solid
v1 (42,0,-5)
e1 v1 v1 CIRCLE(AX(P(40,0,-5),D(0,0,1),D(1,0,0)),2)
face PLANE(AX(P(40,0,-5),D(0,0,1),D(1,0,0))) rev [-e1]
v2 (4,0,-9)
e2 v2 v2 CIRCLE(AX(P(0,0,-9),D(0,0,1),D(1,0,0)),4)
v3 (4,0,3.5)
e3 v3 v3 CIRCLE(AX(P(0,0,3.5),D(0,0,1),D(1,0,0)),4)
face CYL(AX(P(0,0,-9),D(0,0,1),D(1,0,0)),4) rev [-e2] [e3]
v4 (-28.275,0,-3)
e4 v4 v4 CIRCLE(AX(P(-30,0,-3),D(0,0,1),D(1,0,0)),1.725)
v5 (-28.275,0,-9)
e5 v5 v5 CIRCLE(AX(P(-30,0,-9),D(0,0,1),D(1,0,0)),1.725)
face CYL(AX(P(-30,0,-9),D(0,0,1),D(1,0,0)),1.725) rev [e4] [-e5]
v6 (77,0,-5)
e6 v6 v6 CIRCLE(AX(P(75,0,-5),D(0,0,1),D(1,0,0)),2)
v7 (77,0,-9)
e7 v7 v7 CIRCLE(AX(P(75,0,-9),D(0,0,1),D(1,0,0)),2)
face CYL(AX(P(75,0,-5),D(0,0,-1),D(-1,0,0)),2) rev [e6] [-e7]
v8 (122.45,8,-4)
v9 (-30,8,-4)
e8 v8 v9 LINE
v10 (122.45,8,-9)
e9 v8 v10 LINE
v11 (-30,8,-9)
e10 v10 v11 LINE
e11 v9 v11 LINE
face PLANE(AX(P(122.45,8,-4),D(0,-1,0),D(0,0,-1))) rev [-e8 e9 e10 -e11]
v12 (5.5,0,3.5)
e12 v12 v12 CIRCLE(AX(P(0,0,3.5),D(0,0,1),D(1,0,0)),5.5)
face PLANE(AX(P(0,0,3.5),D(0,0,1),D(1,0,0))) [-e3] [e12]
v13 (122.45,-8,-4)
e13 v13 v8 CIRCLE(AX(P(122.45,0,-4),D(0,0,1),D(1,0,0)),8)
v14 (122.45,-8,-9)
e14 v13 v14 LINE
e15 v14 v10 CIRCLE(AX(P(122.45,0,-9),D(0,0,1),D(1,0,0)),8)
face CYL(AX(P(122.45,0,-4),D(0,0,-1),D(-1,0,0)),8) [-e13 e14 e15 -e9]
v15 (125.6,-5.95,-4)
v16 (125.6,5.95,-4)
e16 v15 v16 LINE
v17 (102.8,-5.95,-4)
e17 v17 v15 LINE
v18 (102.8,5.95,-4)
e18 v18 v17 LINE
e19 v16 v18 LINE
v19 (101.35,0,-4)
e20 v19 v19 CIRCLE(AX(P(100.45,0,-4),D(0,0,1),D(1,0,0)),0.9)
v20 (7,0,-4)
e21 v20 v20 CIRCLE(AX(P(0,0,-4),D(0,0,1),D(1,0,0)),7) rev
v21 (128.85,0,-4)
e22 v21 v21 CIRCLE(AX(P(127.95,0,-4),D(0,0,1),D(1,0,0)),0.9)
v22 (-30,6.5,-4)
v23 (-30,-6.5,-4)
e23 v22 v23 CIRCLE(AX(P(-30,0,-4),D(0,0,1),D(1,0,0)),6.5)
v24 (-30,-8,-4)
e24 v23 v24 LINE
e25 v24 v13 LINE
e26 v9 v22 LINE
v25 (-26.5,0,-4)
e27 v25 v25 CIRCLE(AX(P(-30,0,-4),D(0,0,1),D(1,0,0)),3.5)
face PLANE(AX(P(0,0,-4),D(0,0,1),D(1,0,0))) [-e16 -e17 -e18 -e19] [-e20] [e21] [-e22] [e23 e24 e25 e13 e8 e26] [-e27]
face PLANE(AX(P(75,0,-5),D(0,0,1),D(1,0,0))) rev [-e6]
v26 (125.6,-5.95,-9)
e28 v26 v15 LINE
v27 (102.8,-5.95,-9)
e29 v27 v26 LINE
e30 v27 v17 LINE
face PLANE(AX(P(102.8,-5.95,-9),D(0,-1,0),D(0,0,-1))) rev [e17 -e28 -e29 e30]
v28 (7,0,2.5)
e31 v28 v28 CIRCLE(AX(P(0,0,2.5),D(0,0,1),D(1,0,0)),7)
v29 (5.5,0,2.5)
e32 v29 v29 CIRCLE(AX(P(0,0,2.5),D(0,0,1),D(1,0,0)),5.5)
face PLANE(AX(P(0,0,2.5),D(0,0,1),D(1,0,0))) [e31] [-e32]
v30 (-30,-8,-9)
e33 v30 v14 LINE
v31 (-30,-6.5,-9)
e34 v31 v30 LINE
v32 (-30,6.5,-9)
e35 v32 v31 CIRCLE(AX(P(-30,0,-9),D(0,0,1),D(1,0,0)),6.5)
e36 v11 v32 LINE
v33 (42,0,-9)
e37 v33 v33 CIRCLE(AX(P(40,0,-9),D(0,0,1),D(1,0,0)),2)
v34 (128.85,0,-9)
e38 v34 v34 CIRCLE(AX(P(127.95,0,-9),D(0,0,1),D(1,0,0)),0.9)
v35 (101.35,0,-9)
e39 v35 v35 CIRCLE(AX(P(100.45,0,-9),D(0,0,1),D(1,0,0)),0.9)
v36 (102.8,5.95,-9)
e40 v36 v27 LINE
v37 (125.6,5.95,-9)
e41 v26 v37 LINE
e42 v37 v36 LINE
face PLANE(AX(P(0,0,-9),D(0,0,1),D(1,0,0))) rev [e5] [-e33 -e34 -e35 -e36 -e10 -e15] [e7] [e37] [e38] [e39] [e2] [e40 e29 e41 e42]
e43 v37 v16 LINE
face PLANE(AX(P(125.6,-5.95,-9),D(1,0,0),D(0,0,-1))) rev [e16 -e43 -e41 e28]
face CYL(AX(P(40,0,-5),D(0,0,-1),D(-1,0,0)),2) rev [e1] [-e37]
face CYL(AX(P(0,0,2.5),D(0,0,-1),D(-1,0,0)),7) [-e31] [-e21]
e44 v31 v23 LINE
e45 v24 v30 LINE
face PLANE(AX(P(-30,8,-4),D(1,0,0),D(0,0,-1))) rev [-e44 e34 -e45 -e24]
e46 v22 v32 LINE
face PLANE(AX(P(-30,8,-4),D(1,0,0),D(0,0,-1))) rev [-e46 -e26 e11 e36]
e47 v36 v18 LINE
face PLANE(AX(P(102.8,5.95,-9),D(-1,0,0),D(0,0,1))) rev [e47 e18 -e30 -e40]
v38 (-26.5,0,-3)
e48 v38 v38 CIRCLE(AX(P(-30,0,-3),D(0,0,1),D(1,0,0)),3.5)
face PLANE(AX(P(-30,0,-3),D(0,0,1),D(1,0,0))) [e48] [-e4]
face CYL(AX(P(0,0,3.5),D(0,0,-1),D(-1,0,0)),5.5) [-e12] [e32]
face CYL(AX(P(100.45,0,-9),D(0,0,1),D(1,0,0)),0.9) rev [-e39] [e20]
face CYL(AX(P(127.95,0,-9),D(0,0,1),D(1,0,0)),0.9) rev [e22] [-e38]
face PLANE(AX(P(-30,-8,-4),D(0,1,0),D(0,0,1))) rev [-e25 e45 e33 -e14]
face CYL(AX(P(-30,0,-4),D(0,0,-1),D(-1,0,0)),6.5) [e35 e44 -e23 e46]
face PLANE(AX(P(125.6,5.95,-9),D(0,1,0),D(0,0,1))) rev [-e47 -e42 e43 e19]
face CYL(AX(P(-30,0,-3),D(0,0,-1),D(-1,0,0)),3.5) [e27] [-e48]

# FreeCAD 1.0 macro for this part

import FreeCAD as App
import Part
import Sketcher

V = App.Vector
Q = App.Units.Quantity


def add_polygon(sketch, points):
    """Adds a closed chain of lines whose ends are joined by coincident constraints."""
    first, n = sketch.GeometryCount, len(points)
    for a, b in zip(points, points[1:] + points[:1]):
        sketch.addGeometry(Part.LineSegment(App.Vector(*a, 0), App.Vector(*b, 0)), False)
    for i in range(n):
        sketch.addConstraint(Sketcher.Constraint("Coincident", first + i, 2, first + (i + 1) % n, 1))

doc = App.newDocument("Part")
params = doc.addObject("Spreadsheet::Sheet", "Params")
for row, (alias, value) in enumerate([
    ("sketch1_height", "16 mm"),
    ("sketch1_width", "152.45 mm"),
    ("pad1_length", "5 mm"),
    ("sketch2_diameter", "13 mm"),
    ("pad2_length", "5 mm"),
    ("sketch3_diameter", "16 mm"),
    ("pad3_length", "5 mm"),
    ("sketch4_diameter", "14 mm"),
    ("pad4_length", "11.5 mm"),
    ("sketch5_diameter", "11 mm"),
    ("pad5_length", "1 mm"),
    ("sketch6_diameter", "7 mm"),
    ("pad6_length", "1 mm"),
    ("sketch7_diameter", "8 mm"),
    ("sketch8_diameter", "3.45 mm"),
    ("sketch9_width", "22.8 mm"),
    ("sketch9_height", "11.9 mm"),
    ("sketch10_diameter", "1.8 mm"),
    ("sketch11_diameter", "4 mm"),
    ("pocket5_length", "4 mm"),
], start=1):
    params.set(f"A{row}", alias)
    params.set(f"B{row}", "=" + value)
    params.setAlias(f"B{row}", alias)

body = doc.addObject("PartDesign::Body", "Body")

# Sketch on XY plane
sketch1 = doc.addObject("Sketcher::SketchObject", "Sketch")
body.addObject(sketch1)
sketch1.AttachmentSupport = (doc.XY_Plane, [""])
sketch1.MapMode = "FlatFace"
sketch1.AttachmentOffset = App.Placement(V(0, 0, -9), App.Rotation())
add_polygon(sketch1, [(-30, 8), (-30, -8), (122.45, -8), (122.45, 8)])  # lines 0-3
sketch1.addConstraint(Sketcher.Constraint("Vertical", 0))
sketch1.addConstraint(Sketcher.Constraint("Horizontal", 1))
sketch1.addConstraint(Sketcher.Constraint("Vertical", 2))
sketch1.addConstraint(Sketcher.Constraint("Horizontal", 3))
sketch1.addConstraint(Sketcher.Constraint("DistanceY", 0, 2, 0, 1, Q("16 mm")))
sketch1.addConstraint(Sketcher.Constraint("DistanceX", 0, 2, -1, 1, Q("30 mm")))
sketch1.addConstraint(Sketcher.Constraint("DistanceY", 0, 2, -1, 1, Q("8 mm")))
sketch1.addConstraint(Sketcher.Constraint("DistanceX", 1, 1, 1, 2, Q("152.45 mm")))
sketch1.setExpression("Constraints[8]", "Params.sketch1_height")
sketch1.setExpression("Constraints[11]", "Params.sketch1_width")
pad1 = doc.addObject("PartDesign::Pad", "Pad")
body.addObject(pad1)
pad1.Profile = sketch1
pad1.setExpression("Length", "Params.pad1_length")

# Sketch on XY plane
sketch2 = doc.addObject("Sketcher::SketchObject", "Sketch001")
body.addObject(sketch2)
sketch2.AttachmentSupport = (doc.XY_Plane, [""])
sketch2.MapMode = "FlatFace"
sketch2.AttachmentOffset = App.Placement(V(0, 0, -9), App.Rotation())
sketch2.addGeometry(Part.Circle(V(-30, 0, 0), V(0, 0, 1), 6.5), False)
sketch2.addConstraint(Sketcher.Constraint("PointOnObject", 0, 3, -1))
sketch2.addConstraint(Sketcher.Constraint("Diameter", 0, Q("13 mm")))
sketch2.addConstraint(Sketcher.Constraint("DistanceX", 0, 3, -1, 1, Q("30 mm")))
sketch2.setExpression("Constraints[1]", "Params.sketch2_diameter")
pad2 = doc.addObject("PartDesign::Pad", "Pad001")
body.addObject(pad2)
pad2.Profile = sketch2
pad2.setExpression("Length", "Params.pad2_length")

# Sketch on XY plane
sketch3 = doc.addObject("Sketcher::SketchObject", "Sketch002")
body.addObject(sketch3)
sketch3.AttachmentSupport = (doc.XY_Plane, [""])
sketch3.MapMode = "FlatFace"
sketch3.AttachmentOffset = App.Placement(V(0, 0, -9), App.Rotation())
sketch3.addGeometry(Part.Circle(V(122.45, 0, 0), V(0, 0, 1), 8), False)
sketch3.addConstraint(Sketcher.Constraint("PointOnObject", 0, 3, -1))
sketch3.addConstraint(Sketcher.Constraint("Diameter", 0, Q("16 mm")))
sketch3.addConstraint(Sketcher.Constraint("DistanceX", -1, 1, 0, 3, Q("122.45 mm")))
sketch3.setExpression("Constraints[1]", "Params.sketch3_diameter")
pad3 = doc.addObject("PartDesign::Pad", "Pad002")
body.addObject(pad3)
pad3.Profile = sketch3
pad3.setExpression("Length", "Params.pad3_length")

# Sketch on XY plane
sketch4 = doc.addObject("Sketcher::SketchObject", "Sketch003")
body.addObject(sketch4)
sketch4.AttachmentSupport = (doc.XY_Plane, [""])
sketch4.MapMode = "FlatFace"
sketch4.AttachmentOffset = App.Placement(V(0, 0, -9), App.Rotation())
sketch4.addGeometry(Part.Circle(V(0, 0, 0), V(0, 0, 1), 7), False)
sketch4.addConstraint(Sketcher.Constraint("Coincident", 0, 3, -1, 1))
sketch4.addConstraint(Sketcher.Constraint("Diameter", 0, Q("14 mm")))
sketch4.setExpression("Constraints[1]", "Params.sketch4_diameter")
pad4 = doc.addObject("PartDesign::Pad", "Pad003")
body.addObject(pad4)
pad4.Profile = sketch4
pad4.setExpression("Length", "Params.pad4_length")

# Sketch on XY plane
sketch5 = doc.addObject("Sketcher::SketchObject", "Sketch004")
body.addObject(sketch5)
sketch5.AttachmentSupport = (doc.XY_Plane, [""])
sketch5.MapMode = "FlatFace"
sketch5.AttachmentOffset = App.Placement(V(0, 0, 2.5), App.Rotation())
sketch5.addGeometry(Part.Circle(V(0, 0, 0), V(0, 0, 1), 5.5), False)
sketch5.addConstraint(Sketcher.Constraint("Coincident", 0, 3, -1, 1))
sketch5.addConstraint(Sketcher.Constraint("Diameter", 0, Q("11 mm")))
sketch5.setExpression("Constraints[1]", "Params.sketch5_diameter")
pad5 = doc.addObject("PartDesign::Pad", "Pad004")
body.addObject(pad5)
pad5.Profile = sketch5
pad5.setExpression("Length", "Params.pad5_length")

# Sketch on XY plane
sketch6 = doc.addObject("Sketcher::SketchObject", "Sketch005")
body.addObject(sketch6)
sketch6.AttachmentSupport = (doc.XY_Plane, [""])
sketch6.MapMode = "FlatFace"
sketch6.AttachmentOffset = App.Placement(V(0, 0, -4), App.Rotation())
sketch6.addGeometry(Part.Circle(V(-30, 0, 0), V(0, 0, 1), 3.5), False)
sketch6.addConstraint(Sketcher.Constraint("PointOnObject", 0, 3, -1))
sketch6.addConstraint(Sketcher.Constraint("Diameter", 0, Q("7 mm")))
sketch6.addConstraint(Sketcher.Constraint("DistanceX", 0, 3, -1, 1, Q("30 mm")))
sketch6.setExpression("Constraints[1]", "Params.sketch6_diameter")
pad6 = doc.addObject("PartDesign::Pad", "Pad005")
body.addObject(pad6)
pad6.Profile = sketch6
pad6.setExpression("Length", "Params.pad6_length")

# Sketch on XY plane
sketch7 = doc.addObject("Sketcher::SketchObject", "Sketch006")
body.addObject(sketch7)
sketch7.AttachmentSupport = (doc.XY_Plane, [""])
sketch7.MapMode = "FlatFace"
sketch7.addGeometry(Part.Circle(V(0, 0, 0), V(0, 0, 1), 4), False)
sketch7.addConstraint(Sketcher.Constraint("Coincident", 0, 3, -1, 1))
sketch7.addConstraint(Sketcher.Constraint("Diameter", 0, Q("8 mm")))
sketch7.setExpression("Constraints[1]", "Params.sketch7_diameter")
pocket1 = doc.addObject("PartDesign::Pocket", "Pocket")
body.addObject(pocket1)
pocket1.Profile = sketch7
pocket1.Type = "ThroughAll"
pocket1.Midplane = True

# Sketch on XY plane
sketch8 = doc.addObject("Sketcher::SketchObject", "Sketch007")
body.addObject(sketch8)
sketch8.AttachmentSupport = (doc.XY_Plane, [""])
sketch8.MapMode = "FlatFace"
sketch8.addGeometry(Part.Circle(V(-30, 0, 0), V(0, 0, 1), 1.725), False)
sketch8.addConstraint(Sketcher.Constraint("PointOnObject", 0, 3, -1))
sketch8.addConstraint(Sketcher.Constraint("Diameter", 0, Q("3.45 mm")))
sketch8.addConstraint(Sketcher.Constraint("DistanceX", 0, 3, -1, 1, Q("30 mm")))
sketch8.setExpression("Constraints[1]", "Params.sketch8_diameter")
pocket2 = doc.addObject("PartDesign::Pocket", "Pocket001")
body.addObject(pocket2)
pocket2.Profile = sketch8
pocket2.Type = "ThroughAll"
pocket2.Midplane = True

# Sketch on XY plane
sketch9 = doc.addObject("Sketcher::SketchObject", "Sketch008")
body.addObject(sketch9)
sketch9.AttachmentSupport = (doc.XY_Plane, [""])
sketch9.MapMode = "FlatFace"
add_polygon(sketch9, [(102.8, 5.95), (102.8, -5.95), (125.6, -5.95), (125.6, 5.95)])  # lines 0-3
sketch9.addConstraint(Sketcher.Constraint("Vertical", 0))
sketch9.addConstraint(Sketcher.Constraint("Horizontal", 1))
sketch9.addConstraint(Sketcher.Constraint("Vertical", 2))
sketch9.addConstraint(Sketcher.Constraint("Horizontal", 3))
sketch9.addConstraint(Sketcher.Constraint("DistanceX", 1, 1, 1, 2, Q("22.8 mm")))
sketch9.addConstraint(Sketcher.Constraint("DistanceY", 0, 2, 0, 1, Q("11.9 mm")))
sketch9.addConstraint(Sketcher.Constraint("DistanceX", -1, 1, 0, 2, Q("102.8 mm")))
sketch9.addConstraint(Sketcher.Constraint("DistanceY", 0, 2, -1, 1, Q("5.95 mm")))
sketch9.setExpression("Constraints[8]", "Params.sketch9_width")
sketch9.setExpression("Constraints[9]", "Params.sketch9_height")
pocket3 = doc.addObject("PartDesign::Pocket", "Pocket002")
body.addObject(pocket3)
pocket3.Profile = sketch9
pocket3.Type = "ThroughAll"
pocket3.Midplane = True

# Sketch on XY plane
sketch10 = doc.addObject("Sketcher::SketchObject", "Sketch009")
body.addObject(sketch10)
sketch10.AttachmentSupport = (doc.XY_Plane, [""])
sketch10.MapMode = "FlatFace"
sketch10.addGeometry(Part.Circle(V(100.45, 0, 0), V(0, 0, 1), 0.9), False)
sketch10.addGeometry(Part.Circle(V(127.95, 0, 0), V(0, 0, 1), 0.9), False)
sketch10.addConstraint(Sketcher.Constraint("Equal", 0, 1))
sketch10.addConstraint(Sketcher.Constraint("PointOnObject", 0, 3, -1))
sketch10.addConstraint(Sketcher.Constraint("PointOnObject", 1, 3, -1))
sketch10.addConstraint(Sketcher.Constraint("Diameter", 0, Q("1.8 mm")))
sketch10.addConstraint(Sketcher.Constraint("DistanceX", 0, 3, 1, 3, Q("27.5 mm")))
sketch10.addConstraint(Sketcher.Constraint("DistanceX", -1, 1, 0, 3, Q("100.45 mm")))
sketch10.setExpression("Constraints[3]", "Params.sketch10_diameter")
pocket4 = doc.addObject("PartDesign::Pocket", "Pocket003")
body.addObject(pocket4)
pocket4.Profile = sketch10
pocket4.Type = "ThroughAll"
pocket4.Midplane = True

# Sketch on XY plane
sketch11 = doc.addObject("Sketcher::SketchObject", "Sketch010")
body.addObject(sketch11)
sketch11.AttachmentSupport = (doc.XY_Plane, [""])
sketch11.MapMode = "FlatFace"
sketch11.AttachmentOffset = App.Placement(V(0, 0, -9), App.Rotation())
sketch11.addGeometry(Part.Circle(V(40, 0, 0), V(0, 0, 1), 2), False)
sketch11.addGeometry(Part.Circle(V(75, 0, 0), V(0, 0, 1), 2), False)
sketch11.addConstraint(Sketcher.Constraint("Equal", 0, 1))
sketch11.addConstraint(Sketcher.Constraint("PointOnObject", 0, 3, -1))
sketch11.addConstraint(Sketcher.Constraint("PointOnObject", 1, 3, -1))
sketch11.addConstraint(Sketcher.Constraint("Diameter", 0, Q("4 mm")))
sketch11.addConstraint(Sketcher.Constraint("DistanceX", -1, 1, 0, 3, Q("40 mm")))
sketch11.addConstraint(Sketcher.Constraint("DistanceX", -1, 1, 1, 3, Q("75 mm")))
sketch11.setExpression("Constraints[3]", "Params.sketch11_diameter")
pocket5 = doc.addObject("PartDesign::Pocket", "Pocket004")
body.addObject(pocket5)
pocket5.Profile = sketch11
pocket5.setExpression("Length", "Params.pocket5_length")
pocket5.Reversed = True

doc.recompute()
